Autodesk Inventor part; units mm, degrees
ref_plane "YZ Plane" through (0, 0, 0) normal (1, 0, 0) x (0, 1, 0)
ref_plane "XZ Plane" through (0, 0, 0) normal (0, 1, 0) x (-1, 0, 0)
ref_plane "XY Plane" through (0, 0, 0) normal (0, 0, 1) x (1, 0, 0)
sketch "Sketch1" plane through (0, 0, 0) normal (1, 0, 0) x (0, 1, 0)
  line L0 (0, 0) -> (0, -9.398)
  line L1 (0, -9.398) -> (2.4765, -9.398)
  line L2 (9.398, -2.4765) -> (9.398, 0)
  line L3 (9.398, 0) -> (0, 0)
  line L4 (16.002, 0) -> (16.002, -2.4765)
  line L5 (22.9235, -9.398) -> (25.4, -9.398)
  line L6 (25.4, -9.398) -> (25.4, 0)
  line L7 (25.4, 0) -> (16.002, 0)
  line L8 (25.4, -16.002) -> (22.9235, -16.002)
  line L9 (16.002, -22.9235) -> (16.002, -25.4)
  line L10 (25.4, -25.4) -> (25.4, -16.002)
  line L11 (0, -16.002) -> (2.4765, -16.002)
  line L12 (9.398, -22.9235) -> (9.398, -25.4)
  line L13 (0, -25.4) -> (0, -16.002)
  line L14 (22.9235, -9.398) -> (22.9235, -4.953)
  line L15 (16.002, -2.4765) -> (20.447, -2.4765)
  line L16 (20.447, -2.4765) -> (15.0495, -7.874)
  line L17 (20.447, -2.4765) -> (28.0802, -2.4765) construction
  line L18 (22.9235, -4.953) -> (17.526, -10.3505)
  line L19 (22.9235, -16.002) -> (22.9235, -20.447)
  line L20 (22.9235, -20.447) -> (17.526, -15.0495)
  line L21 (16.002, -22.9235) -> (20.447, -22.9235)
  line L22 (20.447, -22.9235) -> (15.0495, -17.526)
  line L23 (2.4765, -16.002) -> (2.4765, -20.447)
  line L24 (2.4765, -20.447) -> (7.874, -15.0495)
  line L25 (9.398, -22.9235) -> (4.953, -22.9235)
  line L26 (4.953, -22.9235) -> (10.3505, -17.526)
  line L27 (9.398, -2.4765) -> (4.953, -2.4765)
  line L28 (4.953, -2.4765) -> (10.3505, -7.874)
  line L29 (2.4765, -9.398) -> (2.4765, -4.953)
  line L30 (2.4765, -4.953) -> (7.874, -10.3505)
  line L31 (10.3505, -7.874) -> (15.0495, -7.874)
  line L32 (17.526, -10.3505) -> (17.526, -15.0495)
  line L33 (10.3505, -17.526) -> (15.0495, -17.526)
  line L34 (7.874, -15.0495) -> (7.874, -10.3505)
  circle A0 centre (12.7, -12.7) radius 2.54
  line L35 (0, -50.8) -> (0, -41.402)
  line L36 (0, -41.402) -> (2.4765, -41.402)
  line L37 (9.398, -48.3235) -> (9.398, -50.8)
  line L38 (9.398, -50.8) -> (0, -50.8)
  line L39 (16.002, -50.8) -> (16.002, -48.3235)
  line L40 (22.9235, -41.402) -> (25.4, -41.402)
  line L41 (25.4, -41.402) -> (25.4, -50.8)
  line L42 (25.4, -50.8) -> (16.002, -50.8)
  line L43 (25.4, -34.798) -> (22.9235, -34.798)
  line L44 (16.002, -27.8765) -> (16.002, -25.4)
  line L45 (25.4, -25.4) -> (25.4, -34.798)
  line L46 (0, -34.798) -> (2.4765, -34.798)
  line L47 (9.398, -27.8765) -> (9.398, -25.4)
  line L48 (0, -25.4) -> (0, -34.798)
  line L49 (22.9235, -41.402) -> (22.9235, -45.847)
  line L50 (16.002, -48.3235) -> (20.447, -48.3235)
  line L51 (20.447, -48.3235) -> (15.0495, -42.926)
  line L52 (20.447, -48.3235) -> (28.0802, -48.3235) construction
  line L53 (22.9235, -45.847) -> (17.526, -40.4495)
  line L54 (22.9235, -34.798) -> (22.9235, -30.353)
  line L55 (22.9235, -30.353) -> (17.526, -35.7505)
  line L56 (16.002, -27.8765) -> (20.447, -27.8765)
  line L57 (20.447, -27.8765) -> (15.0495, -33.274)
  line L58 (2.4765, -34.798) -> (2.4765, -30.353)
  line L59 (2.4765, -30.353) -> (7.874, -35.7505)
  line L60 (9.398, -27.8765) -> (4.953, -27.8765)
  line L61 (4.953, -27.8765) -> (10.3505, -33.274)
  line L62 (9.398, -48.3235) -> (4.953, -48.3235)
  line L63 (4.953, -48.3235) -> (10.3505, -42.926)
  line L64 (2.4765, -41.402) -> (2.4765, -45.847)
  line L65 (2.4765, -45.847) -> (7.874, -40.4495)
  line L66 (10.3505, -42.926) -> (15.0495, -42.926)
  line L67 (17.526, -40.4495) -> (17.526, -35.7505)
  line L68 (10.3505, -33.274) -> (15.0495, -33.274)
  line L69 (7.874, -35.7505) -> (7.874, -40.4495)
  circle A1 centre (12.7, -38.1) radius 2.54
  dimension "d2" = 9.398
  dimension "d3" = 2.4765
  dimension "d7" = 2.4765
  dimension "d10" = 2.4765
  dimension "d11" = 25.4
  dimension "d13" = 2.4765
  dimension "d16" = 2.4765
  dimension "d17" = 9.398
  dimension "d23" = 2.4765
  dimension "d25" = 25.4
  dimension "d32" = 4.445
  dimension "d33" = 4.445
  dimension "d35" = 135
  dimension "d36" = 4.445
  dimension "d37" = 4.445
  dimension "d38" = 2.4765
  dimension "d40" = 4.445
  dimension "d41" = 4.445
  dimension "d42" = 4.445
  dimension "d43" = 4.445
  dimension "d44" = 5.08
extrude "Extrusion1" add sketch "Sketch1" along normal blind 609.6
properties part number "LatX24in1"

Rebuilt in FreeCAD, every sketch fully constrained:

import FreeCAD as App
import Part
import Sketcher

V = App.Vector
Q = App.Units.Quantity

doc = App.newDocument("Part")
body = doc.addObject("PartDesign::Body", "Body")

# Sketch on YZ plane
sketch1 = body.newObject("Sketcher::SketchObject", "Sketch")
sketch1.AttachmentSupport = (doc.getObject("YZ_Plane"), [""])
sketch1.MapMode = "FlatFace"
sketch1.addGeometry([
    Part.LineSegment(V(9.398, 0, 0), V(0, 0, 0)),  # 0
    Part.LineSegment(V(0, 0, 0), V(0, -9.398, 0)),  # 1
    Part.LineSegment(V(0, -9.398, 0), V(2.4765, -9.398, 0)),  # 2
    Part.LineSegment(V(2.4765, -9.398, 0), V(2.4765, -4.953, 0)),  # 3
    Part.LineSegment(V(2.4765, -4.953, 0), V(7.874, -10.3505, 0)),  # 4
    Part.LineSegment(V(7.874, -10.3505, 0), V(7.874, -15.0495, 0)),  # 5
    Part.LineSegment(V(7.874, -15.0495, 0), V(2.4765, -20.447, 0)),  # 6
    Part.LineSegment(V(2.4765, -20.447, 0), V(2.4765, -16.002, 0)),  # 7
    Part.LineSegment(V(2.4765, -16.002, 0), V(0, -16.002, 0)),  # 8
    Part.LineSegment(V(0, -16.002, 0), V(0, -34.798, 0)),  # 9
    Part.LineSegment(V(0, -34.798, 0), V(2.4765, -34.798, 0)),  # 10
    Part.LineSegment(V(2.4765, -34.798, 0), V(2.4765, -30.353, 0)),  # 11
    Part.LineSegment(V(2.4765, -30.353, 0), V(7.874, -35.7505, 0)),  # 12
    Part.LineSegment(V(7.874, -35.7505, 0), V(7.874, -40.4495, 0)),  # 13
    Part.LineSegment(V(7.874, -40.4495, 0), V(2.4765, -45.847, 0)),  # 14
    Part.LineSegment(V(2.4765, -45.847, 0), V(2.4765, -41.402, 0)),  # 15
    Part.LineSegment(V(2.4765, -41.402, 0), V(0, -41.402, 0)),  # 16
    Part.LineSegment(V(0, -41.402, 0), V(0, -50.8, 0)),  # 17
    Part.LineSegment(V(0, -50.8, 0), V(9.398, -50.8, 0)),  # 18
    Part.LineSegment(V(9.398, -50.8, 0), V(9.398, -48.3235, 0)),  # 19
    Part.LineSegment(V(9.398, -48.3235, 0), V(4.953, -48.3235, 0)),  # 20
    Part.LineSegment(V(4.953, -48.3235, 0), V(10.3505, -42.926, 0)),  # 21
    Part.LineSegment(V(10.3505, -42.926, 0), V(15.0495, -42.926, 0)),  # 22
    Part.LineSegment(V(15.0495, -42.926, 0), V(20.447, -48.3235, 0)),  # 23
    Part.LineSegment(V(20.447, -48.3235, 0), V(16.002, -48.3235, 0)),  # 24
    Part.LineSegment(V(16.002, -48.3235, 0), V(16.002, -50.8, 0)),  # 25
    Part.LineSegment(V(16.002, -50.8, 0), V(25.4, -50.8, 0)),  # 26
    Part.LineSegment(V(25.4, -50.8, 0), V(25.4, -41.402, 0)),  # 27
    Part.LineSegment(V(25.4, -41.402, 0), V(22.9235, -41.402, 0)),  # 28
    Part.LineSegment(V(22.9235, -41.402, 0), V(22.9235, -45.847, 0)),  # 29
    Part.LineSegment(V(22.9235, -45.847, 0), V(17.526, -40.4495, 0)),  # 30
    Part.LineSegment(V(17.526, -40.4495, 0), V(17.526, -35.7505, 0)),  # 31
    Part.LineSegment(V(17.526, -35.7505, 0), V(22.9235, -30.353, 0)),  # 32
    Part.LineSegment(V(22.9235, -30.353, 0), V(22.9235, -34.798, 0)),  # 33
    Part.LineSegment(V(22.9235, -34.798, 0), V(25.4, -34.798, 0)),  # 34
    Part.LineSegment(V(25.4, -34.798, 0), V(25.4, -16.002, 0)),  # 35
    Part.LineSegment(V(25.4, -16.002, 0), V(22.9235, -16.002, 0)),  # 36
    Part.LineSegment(V(22.9235, -16.002, 0), V(22.9235, -20.447, 0)),  # 37
    Part.LineSegment(V(22.9235, -20.447, 0), V(17.526, -15.0495, 0)),  # 38
    Part.LineSegment(V(17.526, -15.0495, 0), V(17.526, -10.3505, 0)),  # 39
    Part.LineSegment(V(17.526, -10.3505, 0), V(22.9235, -4.953, 0)),  # 40
    Part.LineSegment(V(22.9235, -4.953, 0), V(22.9235, -9.398, 0)),  # 41
    Part.LineSegment(V(22.9235, -9.398, 0), V(25.4, -9.398, 0)),  # 42
    Part.LineSegment(V(25.4, -9.398, 0), V(25.4, 0, 0)),  # 43
    Part.LineSegment(V(25.4, 0, 0), V(16.002, 0, 0)),  # 44
    Part.LineSegment(V(16.002, 0, 0), V(16.002, -2.4765, 0)),  # 45
    Part.LineSegment(V(16.002, -2.4765, 0), V(20.447, -2.4765, 0)),  # 46
    Part.LineSegment(V(20.447, -2.4765, 0), V(15.0495, -7.874, 0)),  # 47
    Part.LineSegment(V(15.0495, -7.874, 0), V(10.3505, -7.874, 0)),  # 48
    Part.LineSegment(V(10.3505, -7.874, 0), V(4.953, -2.4765, 0)),  # 49
    Part.LineSegment(V(4.953, -2.4765, 0), V(9.398, -2.4765, 0)),  # 50
    Part.LineSegment(V(9.398, -2.4765, 0), V(9.398, 0, 0)),  # 51
    Part.Circle(V(12.7, -38.1, 0), V(0, 0, 1), 2.54),  # 52
    Part.LineSegment(V(20.447, -22.9235, 0), V(16.002, -22.9235, 0)),  # 53
    Part.LineSegment(V(16.002, -22.9235, 0), V(16.002, -27.8765, 0)),  # 54
    Part.LineSegment(V(16.002, -27.8765, 0), V(20.447, -27.8765, 0)),  # 55
    Part.LineSegment(V(20.447, -27.8765, 0), V(15.0495, -33.274, 0)),  # 56
    Part.LineSegment(V(15.0495, -33.274, 0), V(10.3505, -33.274, 0)),  # 57
    Part.LineSegment(V(10.3505, -33.274, 0), V(4.953, -27.8765, 0)),  # 58
    Part.LineSegment(V(4.953, -27.8765, 0), V(9.398, -27.8765, 0)),  # 59
    Part.LineSegment(V(9.398, -27.8765, 0), V(9.398, -22.9235, 0)),  # 60
    Part.LineSegment(V(9.398, -22.9235, 0), V(4.953, -22.9235, 0)),  # 61
    Part.LineSegment(V(4.953, -22.9235, 0), V(10.3505, -17.526, 0)),  # 62
    Part.LineSegment(V(10.3505, -17.526, 0), V(15.0495, -17.526, 0)),  # 63
    Part.LineSegment(V(15.0495, -17.526, 0), V(20.447, -22.9235, 0)),  # 64
    Part.Circle(V(12.7, -12.7, 0), V(0, 0, 1), 2.54),  # 65
], False)
sketch1.addConstraint([
    Sketcher.Constraint("Coincident", 0, 2, 1, 1),
    Sketcher.Constraint("Coincident", 1, 2, 2, 1),
    Sketcher.Constraint("Coincident", 2, 2, 3, 1),
    Sketcher.Constraint("Coincident", 3, 2, 4, 1),
    Sketcher.Constraint("Coincident", 4, 2, 5, 1),
    Sketcher.Constraint("Coincident", 5, 2, 6, 1),
    Sketcher.Constraint("Coincident", 6, 2, 7, 1),
    Sketcher.Constraint("Coincident", 7, 2, 8, 1),
    Sketcher.Constraint("Coincident", 8, 2, 9, 1),
    Sketcher.Constraint("Coincident", 9, 2, 10, 1),
    Sketcher.Constraint("Coincident", 10, 2, 11, 1),
    Sketcher.Constraint("Coincident", 11, 2, 12, 1),
    Sketcher.Constraint("Coincident", 12, 2, 13, 1),
    Sketcher.Constraint("Coincident", 13, 2, 14, 1),
    Sketcher.Constraint("Coincident", 14, 2, 15, 1),
    Sketcher.Constraint("Coincident", 15, 2, 16, 1),
    Sketcher.Constraint("Coincident", 16, 2, 17, 1),
    Sketcher.Constraint("Coincident", 17, 2, 18, 1),
    Sketcher.Constraint("Coincident", 18, 2, 19, 1),
    Sketcher.Constraint("Coincident", 19, 2, 20, 1),
    Sketcher.Constraint("Coincident", 20, 2, 21, 1),
    Sketcher.Constraint("Coincident", 21, 2, 22, 1),
    Sketcher.Constraint("Coincident", 22, 2, 23, 1),
    Sketcher.Constraint("Coincident", 23, 2, 24, 1),
    Sketcher.Constraint("Coincident", 24, 2, 25, 1),
    Sketcher.Constraint("Coincident", 25, 2, 26, 1),
    Sketcher.Constraint("Coincident", 26, 2, 27, 1),
    Sketcher.Constraint("Coincident", 27, 2, 28, 1),
    Sketcher.Constraint("Coincident", 28, 2, 29, 1),
    Sketcher.Constraint("Coincident", 29, 2, 30, 1),
    Sketcher.Constraint("Coincident", 30, 2, 31, 1),
    Sketcher.Constraint("Coincident", 31, 2, 32, 1),
    Sketcher.Constraint("Coincident", 32, 2, 33, 1),
    Sketcher.Constraint("Coincident", 33, 2, 34, 1),
    Sketcher.Constraint("Coincident", 34, 2, 35, 1),
    Sketcher.Constraint("Coincident", 35, 2, 36, 1),
    Sketcher.Constraint("Coincident", 36, 2, 37, 1),
    Sketcher.Constraint("Coincident", 37, 2, 38, 1),
    Sketcher.Constraint("Coincident", 38, 2, 39, 1),
    Sketcher.Constraint("Coincident", 39, 2, 40, 1),
    Sketcher.Constraint("Coincident", 40, 2, 41, 1),
    Sketcher.Constraint("Coincident", 41, 2, 42, 1),
    Sketcher.Constraint("Coincident", 42, 2, 43, 1),
    Sketcher.Constraint("Coincident", 43, 2, 44, 1),
    Sketcher.Constraint("Coincident", 44, 2, 45, 1),
    Sketcher.Constraint("Coincident", 45, 2, 46, 1),
    Sketcher.Constraint("Coincident", 46, 2, 47, 1),
    Sketcher.Constraint("Coincident", 47, 2, 48, 1),
    Sketcher.Constraint("Coincident", 48, 2, 49, 1),
    Sketcher.Constraint("Coincident", 49, 2, 50, 1),
    Sketcher.Constraint("Coincident", 50, 2, 51, 1),
    Sketcher.Constraint("Coincident", 51, 2, 0, 1),
    Sketcher.Constraint("Coincident", 53, 2, 54, 1),
    Sketcher.Constraint("Coincident", 54, 2, 55, 1),
    Sketcher.Constraint("Coincident", 55, 2, 56, 1),
    Sketcher.Constraint("Coincident", 56, 2, 57, 1),
    Sketcher.Constraint("Coincident", 57, 2, 58, 1),
    Sketcher.Constraint("Coincident", 58, 2, 59, 1),
    Sketcher.Constraint("Coincident", 59, 2, 60, 1),
    Sketcher.Constraint("Coincident", 60, 2, 61, 1),
    Sketcher.Constraint("Coincident", 61, 2, 62, 1),
    Sketcher.Constraint("Coincident", 62, 2, 63, 1),
    Sketcher.Constraint("Coincident", 63, 2, 64, 1),
    Sketcher.Constraint("Coincident", 64, 2, 53, 1),
    Sketcher.Constraint("Horizontal", 0),
    Sketcher.Constraint("Vertical", 1),
    Sketcher.Constraint("Horizontal", 2),
    Sketcher.Constraint("Vertical", 3),
    Sketcher.Constraint("Vertical", 5),
    Sketcher.Constraint("Vertical", 7),
    Sketcher.Constraint("Horizontal", 8),
    Sketcher.Constraint("Vertical", 9),
    Sketcher.Constraint("Horizontal", 10),
    Sketcher.Constraint("Vertical", 11),
    Sketcher.Constraint("Vertical", 13),
    Sketcher.Constraint("Vertical", 15),
    Sketcher.Constraint("Horizontal", 16),
    Sketcher.Constraint("Vertical", 17),
    Sketcher.Constraint("Horizontal", 18),
    Sketcher.Constraint("Vertical", 19),
    Sketcher.Constraint("Horizontal", 20),
    Sketcher.Constraint("Horizontal", 22),
    Sketcher.Constraint("Horizontal", 24),
    Sketcher.Constraint("Vertical", 25),
    Sketcher.Constraint("Horizontal", 26),
    Sketcher.Constraint("Vertical", 27),
    Sketcher.Constraint("Horizontal", 28),
    Sketcher.Constraint("Vertical", 29),
    Sketcher.Constraint("Vertical", 31),
    Sketcher.Constraint("Vertical", 33),
    Sketcher.Constraint("Horizontal", 34),
    Sketcher.Constraint("Vertical", 35),
    Sketcher.Constraint("Horizontal", 36),
    Sketcher.Constraint("Vertical", 37),
    Sketcher.Constraint("Vertical", 39),
    Sketcher.Constraint("Vertical", 41),
    Sketcher.Constraint("Horizontal", 42),
    Sketcher.Constraint("Vertical", 43),
    Sketcher.Constraint("Horizontal", 44),
    Sketcher.Constraint("Vertical", 45),
    Sketcher.Constraint("Horizontal", 46),
    Sketcher.Constraint("Horizontal", 48),
    Sketcher.Constraint("Horizontal", 50),
    Sketcher.Constraint("Vertical", 51),
    Sketcher.Constraint("Horizontal", 53),
    Sketcher.Constraint("Vertical", 54),
    Sketcher.Constraint("Horizontal", 55),
    Sketcher.Constraint("Horizontal", 57),
    Sketcher.Constraint("Horizontal", 59),
    Sketcher.Constraint("Vertical", 60),
    Sketcher.Constraint("Horizontal", 61),
    Sketcher.Constraint("Horizontal", 63),
    Sketcher.Constraint("Coincident", 0, 2, -1, 1),
    Sketcher.Constraint("Equal", 52, 65),
    Sketcher.Constraint("PointOnObject", 8, 2, -2),
    Sketcher.Constraint("PointOnObject", 16, 2, -2),
    Sketcher.Constraint("PointOnObject", 43, 2, -1),
    Sketcher.Constraint("Perpendicular", 4, 6),
    Sketcher.Constraint("Perpendicular", 6, 12),
    Sketcher.Constraint("Perpendicular", 12, 14),
    Sketcher.Constraint("Parallel", 14, 21),
    Sketcher.Constraint("Perpendicular", 21, 23),
    Sketcher.Constraint("Parallel", 23, 30),
    Sketcher.Constraint("Perpendicular", 30, 32),
    Sketcher.Constraint("Perpendicular", 32, 38),
    Sketcher.Constraint("Perpendicular", 38, 40),
    Sketcher.Constraint("Parallel", 40, 47),
    Sketcher.Constraint("Perpendicular", 47, 49),
    Sketcher.Constraint("Perpendicular", 49, 56),
    Sketcher.Constraint("Perpendicular", 56, 58),
    Sketcher.Constraint("Perpendicular", 58, 62),
    Sketcher.Constraint("Perpendicular", 62, 64),
    Sketcher.Constraint("Horizontal", 20, 2, 23, 2),
    Sketcher.Constraint("Horizontal", 18, 2, 25, 2),
    Sketcher.Constraint("Horizontal", 16, 2, 27, 2),
    Sketcher.Constraint("Horizontal", 14, 2, 29, 2),
    Sketcher.Constraint("Horizontal", 13, 2, 30, 2),
    Sketcher.Constraint("Horizontal", 12, 2, 31, 2),
    Sketcher.Constraint("Horizontal", 11, 2, 32, 2),
    Sketcher.Constraint("Horizontal", 10, 2, 33, 2),
    Sketcher.Constraint("Horizontal", 8, 2, 35, 2),
    Sketcher.Constraint("Horizontal", 6, 2, 37, 2),
    Sketcher.Constraint("Horizontal", 5, 2, 38, 2),
    Sketcher.Constraint("Horizontal", 4, 2, 39, 2),
    Sketcher.Constraint("Horizontal", 3, 2, 40, 2),
    Sketcher.Constraint("Horizontal", 2, 2, 41, 2),
    Sketcher.Constraint("Horizontal", 46, 2, 49, 2),
    Sketcher.Constraint("Horizontal", 55, 2, 58, 2),
    Sketcher.Constraint("Horizontal", 53, 2, 60, 2),
    Sketcher.Constraint("Vertical", 52, 3, 65, 3),
    Sketcher.Constraint("Vertical", 3, 2, 6, 2),
    Sketcher.Constraint("Vertical", 7, 2, 10, 2),
    Sketcher.Constraint("Vertical", 5, 2, 12, 2),
    Sketcher.Constraint("Vertical", 11, 2, 14, 2),
    Sketcher.Constraint("Vertical", 29, 2, 32, 2),
    Sketcher.Constraint("Vertical", 27, 2, 34, 2),
    Sketcher.Constraint("Vertical", 33, 2, 36, 2),
    Sketcher.Constraint("Vertical", 35, 2, 42, 2),
    Sketcher.Constraint("Vertical", 25, 2, 44, 2),
    Sketcher.Constraint("Vertical", 23, 2, 46, 2),
    Sketcher.Constraint("Vertical", 22, 2, 47, 2),
    Sketcher.Constraint("Vertical", 21, 2, 48, 2),
    Sketcher.Constraint("Vertical", 19, 2, 50, 2),
    Sketcher.Constraint("Vertical", 45, 2, 53, 2),
    Sketcher.Constraint("Vertical", 46, 2, 55, 2),
    Sketcher.Constraint("Vertical", 47, 2, 56, 2),
    Sketcher.Constraint("Vertical", 48, 2, 57, 2),
    Sketcher.Constraint("Vertical", 51, 2, 59, 2),
    Sketcher.Constraint("Vertical", 58, 2, 61, 2),
    Sketcher.Constraint("Vertical", 57, 2, 62, 2),
    Sketcher.Constraint("Vertical", 56, 2, 63, 2),
    Sketcher.Constraint("Equal", 20, 24),
    Sketcher.Constraint("Equal", 18, 26),
    Sketcher.Constraint("Equal", 16, 28),
    Sketcher.Constraint("Equal", 44, 1),
    Sketcher.Constraint("Equal", 61, 3),
    Sketcher.Constraint("Equal", 63, 5),
    Sketcher.Constraint("Equal", 3, 7),
    Sketcher.Constraint("Equal", 7, 11),
    Sketcher.Constraint("Equal", 5, 13),
    Sketcher.Constraint("Equal", 11, 15),
    Sketcher.Constraint("Equal", 1, 17),
    Sketcher.Constraint("Equal", 42, 19),
    Sketcher.Constraint("Equal", 25, 45),
    Sketcher.Constraint("Equal", 14, 21),
    Sketcher.Constraint("Diameter", 52, Q("0.2 in")),
    Sketcher.Constraint("DistanceX", -1, 1, 26, 2, Q("1 in")),
    Sketcher.Constraint("DistanceX", 0, 2, 0, 1, Q("0.37 in")),
    Sketcher.Constraint("DistanceX", 20, 2, 20, 1, Q("0.175 in")),
    Sketcher.Constraint("DistanceX", 2, 1, 2, 2, Q("0.0975 in")),
    Sketcher.Constraint("DistanceY", 17, 2, -1, 1, Q("2 in")),
    Sketcher.Constraint("DistanceX", -1, 1, 52, 3, Q("0.5 in")),
    Sketcher.Constraint("DistanceY", 52, 3, -1, 1, Q("1.5 in")),
    Sketcher.Constraint("DistanceY", 65, 3, -1, 1, Q("0.5 in")),
    Sketcher.Constraint("DistanceX", 22, 1, 22, 2, Q("0.185 in")),
    Sketcher.Constraint("DistanceY", 54, 2, 54, 1, Q("0.195 in")),
    Sketcher.Constraint("DistanceY", 56, 2, -1, 1, Q("1.31 in")),
])
pad1 = body.newObject("PartDesign::Pad", "Pad")
pad1.Profile = sketch1
pad1.Length = Q("24 in")

doc.recompute()
